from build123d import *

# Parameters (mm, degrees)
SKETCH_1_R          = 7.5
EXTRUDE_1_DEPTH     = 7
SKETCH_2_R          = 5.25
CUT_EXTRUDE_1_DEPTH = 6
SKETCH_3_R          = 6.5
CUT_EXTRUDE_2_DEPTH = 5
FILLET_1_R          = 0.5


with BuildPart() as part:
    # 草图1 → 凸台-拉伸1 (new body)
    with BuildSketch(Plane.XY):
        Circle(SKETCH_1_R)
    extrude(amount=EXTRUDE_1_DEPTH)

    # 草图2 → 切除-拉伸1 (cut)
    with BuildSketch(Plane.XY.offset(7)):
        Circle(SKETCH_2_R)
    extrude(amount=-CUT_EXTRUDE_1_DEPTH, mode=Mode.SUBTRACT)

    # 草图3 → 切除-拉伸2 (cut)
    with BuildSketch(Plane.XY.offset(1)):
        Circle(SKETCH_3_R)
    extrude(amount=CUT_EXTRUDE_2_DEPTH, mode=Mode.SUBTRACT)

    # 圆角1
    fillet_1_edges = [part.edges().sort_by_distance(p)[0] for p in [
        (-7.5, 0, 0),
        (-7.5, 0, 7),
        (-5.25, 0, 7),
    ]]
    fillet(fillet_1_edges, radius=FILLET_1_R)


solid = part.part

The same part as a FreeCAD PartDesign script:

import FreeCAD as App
import Part
import Sketcher

V = App.Vector


def edges_at(feature, points):
    """Names of the edges that pass closest to the given points."""
    edges = feature.Shape.Edges
    near = lambda p: min(range(len(edges)), key=lambda i: edges[i].distToShape(Part.Vertex(*p))[0])
    return sorted({f"Edge{near(p) + 1}" for p in points})

doc = App.newDocument("Part")
body = doc.addObject("PartDesign::Body", "Body")

# Sketch on XY plane
sketch1 = doc.addObject("Sketcher::SketchObject", "Sketch")
body.addObject(sketch1)
sketch1.AttachmentSupport = (doc.XY_Plane, [""])
sketch1.MapMode = "FlatFace"
sketch1.addGeometry(Part.Circle(V(0, 0, 0), V(0, 0, 1), 8), False)
sketch1.addConstraint(Sketcher.Constraint("Coincident", 0, 3, -1, 1))
sketch1.addConstraint(Sketcher.Constraint("Diameter", 0, 15.0))
pad1 = doc.addObject("PartDesign::Pad", "Pad")
body.addObject(pad1)
pad1.Profile = sketch1
pad1.Length = 7

# Sketch on XY plane
sketch2 = doc.addObject("Sketcher::SketchObject", "Sketch001")
body.addObject(sketch2)
sketch2.AttachmentSupport = (doc.XY_Plane, [""])
sketch2.MapMode = "FlatFace"
sketch2.AttachmentOffset = App.Placement(V(0, 0, 7), App.Rotation())
sketch2.addGeometry(Part.Circle(V(0, 0, 0), V(0, 0, 1), 5), False)
sketch2.addConstraint(Sketcher.Constraint("Coincident", 0, 3, -1, 1))
sketch2.addConstraint(Sketcher.Constraint("Diameter", 0, 10.5))
pocket1 = doc.addObject("PartDesign::Pocket", "Pocket")
body.addObject(pocket1)
pocket1.Profile = sketch2
pocket1.Length = 6

# Sketch on XY plane
sketch3 = doc.addObject("Sketcher::SketchObject", "Sketch002")
body.addObject(sketch3)
sketch3.AttachmentSupport = (doc.XY_Plane, [""])
sketch3.MapMode = "FlatFace"
sketch3.AttachmentOffset = App.Placement(V(0, 0, 1), App.Rotation())
sketch3.addGeometry(Part.Circle(V(0, 0, 0), V(0, 0, 1), 6), False)
sketch3.addConstraint(Sketcher.Constraint("Coincident", 0, 3, -1, 1))
sketch3.addConstraint(Sketcher.Constraint("Diameter", 0, 13.0))
pocket2 = doc.addObject("PartDesign::Pocket", "Pocket001")
body.addObject(pocket2)
pocket2.Profile = sketch3
pocket2.Length = 5
pocket2.Reversed = True
doc.recompute()

fillet = doc.addObject("PartDesign::Fillet", "Fillet")
body.addObject(fillet)
fillet.Base = (pocket2, edges_at(pocket2, [(-7.5, 0, 0), (-7.5, 0, 7), (-5.25, 0, 7)]))
fillet.Radius = 0.5

doc.recompute()
